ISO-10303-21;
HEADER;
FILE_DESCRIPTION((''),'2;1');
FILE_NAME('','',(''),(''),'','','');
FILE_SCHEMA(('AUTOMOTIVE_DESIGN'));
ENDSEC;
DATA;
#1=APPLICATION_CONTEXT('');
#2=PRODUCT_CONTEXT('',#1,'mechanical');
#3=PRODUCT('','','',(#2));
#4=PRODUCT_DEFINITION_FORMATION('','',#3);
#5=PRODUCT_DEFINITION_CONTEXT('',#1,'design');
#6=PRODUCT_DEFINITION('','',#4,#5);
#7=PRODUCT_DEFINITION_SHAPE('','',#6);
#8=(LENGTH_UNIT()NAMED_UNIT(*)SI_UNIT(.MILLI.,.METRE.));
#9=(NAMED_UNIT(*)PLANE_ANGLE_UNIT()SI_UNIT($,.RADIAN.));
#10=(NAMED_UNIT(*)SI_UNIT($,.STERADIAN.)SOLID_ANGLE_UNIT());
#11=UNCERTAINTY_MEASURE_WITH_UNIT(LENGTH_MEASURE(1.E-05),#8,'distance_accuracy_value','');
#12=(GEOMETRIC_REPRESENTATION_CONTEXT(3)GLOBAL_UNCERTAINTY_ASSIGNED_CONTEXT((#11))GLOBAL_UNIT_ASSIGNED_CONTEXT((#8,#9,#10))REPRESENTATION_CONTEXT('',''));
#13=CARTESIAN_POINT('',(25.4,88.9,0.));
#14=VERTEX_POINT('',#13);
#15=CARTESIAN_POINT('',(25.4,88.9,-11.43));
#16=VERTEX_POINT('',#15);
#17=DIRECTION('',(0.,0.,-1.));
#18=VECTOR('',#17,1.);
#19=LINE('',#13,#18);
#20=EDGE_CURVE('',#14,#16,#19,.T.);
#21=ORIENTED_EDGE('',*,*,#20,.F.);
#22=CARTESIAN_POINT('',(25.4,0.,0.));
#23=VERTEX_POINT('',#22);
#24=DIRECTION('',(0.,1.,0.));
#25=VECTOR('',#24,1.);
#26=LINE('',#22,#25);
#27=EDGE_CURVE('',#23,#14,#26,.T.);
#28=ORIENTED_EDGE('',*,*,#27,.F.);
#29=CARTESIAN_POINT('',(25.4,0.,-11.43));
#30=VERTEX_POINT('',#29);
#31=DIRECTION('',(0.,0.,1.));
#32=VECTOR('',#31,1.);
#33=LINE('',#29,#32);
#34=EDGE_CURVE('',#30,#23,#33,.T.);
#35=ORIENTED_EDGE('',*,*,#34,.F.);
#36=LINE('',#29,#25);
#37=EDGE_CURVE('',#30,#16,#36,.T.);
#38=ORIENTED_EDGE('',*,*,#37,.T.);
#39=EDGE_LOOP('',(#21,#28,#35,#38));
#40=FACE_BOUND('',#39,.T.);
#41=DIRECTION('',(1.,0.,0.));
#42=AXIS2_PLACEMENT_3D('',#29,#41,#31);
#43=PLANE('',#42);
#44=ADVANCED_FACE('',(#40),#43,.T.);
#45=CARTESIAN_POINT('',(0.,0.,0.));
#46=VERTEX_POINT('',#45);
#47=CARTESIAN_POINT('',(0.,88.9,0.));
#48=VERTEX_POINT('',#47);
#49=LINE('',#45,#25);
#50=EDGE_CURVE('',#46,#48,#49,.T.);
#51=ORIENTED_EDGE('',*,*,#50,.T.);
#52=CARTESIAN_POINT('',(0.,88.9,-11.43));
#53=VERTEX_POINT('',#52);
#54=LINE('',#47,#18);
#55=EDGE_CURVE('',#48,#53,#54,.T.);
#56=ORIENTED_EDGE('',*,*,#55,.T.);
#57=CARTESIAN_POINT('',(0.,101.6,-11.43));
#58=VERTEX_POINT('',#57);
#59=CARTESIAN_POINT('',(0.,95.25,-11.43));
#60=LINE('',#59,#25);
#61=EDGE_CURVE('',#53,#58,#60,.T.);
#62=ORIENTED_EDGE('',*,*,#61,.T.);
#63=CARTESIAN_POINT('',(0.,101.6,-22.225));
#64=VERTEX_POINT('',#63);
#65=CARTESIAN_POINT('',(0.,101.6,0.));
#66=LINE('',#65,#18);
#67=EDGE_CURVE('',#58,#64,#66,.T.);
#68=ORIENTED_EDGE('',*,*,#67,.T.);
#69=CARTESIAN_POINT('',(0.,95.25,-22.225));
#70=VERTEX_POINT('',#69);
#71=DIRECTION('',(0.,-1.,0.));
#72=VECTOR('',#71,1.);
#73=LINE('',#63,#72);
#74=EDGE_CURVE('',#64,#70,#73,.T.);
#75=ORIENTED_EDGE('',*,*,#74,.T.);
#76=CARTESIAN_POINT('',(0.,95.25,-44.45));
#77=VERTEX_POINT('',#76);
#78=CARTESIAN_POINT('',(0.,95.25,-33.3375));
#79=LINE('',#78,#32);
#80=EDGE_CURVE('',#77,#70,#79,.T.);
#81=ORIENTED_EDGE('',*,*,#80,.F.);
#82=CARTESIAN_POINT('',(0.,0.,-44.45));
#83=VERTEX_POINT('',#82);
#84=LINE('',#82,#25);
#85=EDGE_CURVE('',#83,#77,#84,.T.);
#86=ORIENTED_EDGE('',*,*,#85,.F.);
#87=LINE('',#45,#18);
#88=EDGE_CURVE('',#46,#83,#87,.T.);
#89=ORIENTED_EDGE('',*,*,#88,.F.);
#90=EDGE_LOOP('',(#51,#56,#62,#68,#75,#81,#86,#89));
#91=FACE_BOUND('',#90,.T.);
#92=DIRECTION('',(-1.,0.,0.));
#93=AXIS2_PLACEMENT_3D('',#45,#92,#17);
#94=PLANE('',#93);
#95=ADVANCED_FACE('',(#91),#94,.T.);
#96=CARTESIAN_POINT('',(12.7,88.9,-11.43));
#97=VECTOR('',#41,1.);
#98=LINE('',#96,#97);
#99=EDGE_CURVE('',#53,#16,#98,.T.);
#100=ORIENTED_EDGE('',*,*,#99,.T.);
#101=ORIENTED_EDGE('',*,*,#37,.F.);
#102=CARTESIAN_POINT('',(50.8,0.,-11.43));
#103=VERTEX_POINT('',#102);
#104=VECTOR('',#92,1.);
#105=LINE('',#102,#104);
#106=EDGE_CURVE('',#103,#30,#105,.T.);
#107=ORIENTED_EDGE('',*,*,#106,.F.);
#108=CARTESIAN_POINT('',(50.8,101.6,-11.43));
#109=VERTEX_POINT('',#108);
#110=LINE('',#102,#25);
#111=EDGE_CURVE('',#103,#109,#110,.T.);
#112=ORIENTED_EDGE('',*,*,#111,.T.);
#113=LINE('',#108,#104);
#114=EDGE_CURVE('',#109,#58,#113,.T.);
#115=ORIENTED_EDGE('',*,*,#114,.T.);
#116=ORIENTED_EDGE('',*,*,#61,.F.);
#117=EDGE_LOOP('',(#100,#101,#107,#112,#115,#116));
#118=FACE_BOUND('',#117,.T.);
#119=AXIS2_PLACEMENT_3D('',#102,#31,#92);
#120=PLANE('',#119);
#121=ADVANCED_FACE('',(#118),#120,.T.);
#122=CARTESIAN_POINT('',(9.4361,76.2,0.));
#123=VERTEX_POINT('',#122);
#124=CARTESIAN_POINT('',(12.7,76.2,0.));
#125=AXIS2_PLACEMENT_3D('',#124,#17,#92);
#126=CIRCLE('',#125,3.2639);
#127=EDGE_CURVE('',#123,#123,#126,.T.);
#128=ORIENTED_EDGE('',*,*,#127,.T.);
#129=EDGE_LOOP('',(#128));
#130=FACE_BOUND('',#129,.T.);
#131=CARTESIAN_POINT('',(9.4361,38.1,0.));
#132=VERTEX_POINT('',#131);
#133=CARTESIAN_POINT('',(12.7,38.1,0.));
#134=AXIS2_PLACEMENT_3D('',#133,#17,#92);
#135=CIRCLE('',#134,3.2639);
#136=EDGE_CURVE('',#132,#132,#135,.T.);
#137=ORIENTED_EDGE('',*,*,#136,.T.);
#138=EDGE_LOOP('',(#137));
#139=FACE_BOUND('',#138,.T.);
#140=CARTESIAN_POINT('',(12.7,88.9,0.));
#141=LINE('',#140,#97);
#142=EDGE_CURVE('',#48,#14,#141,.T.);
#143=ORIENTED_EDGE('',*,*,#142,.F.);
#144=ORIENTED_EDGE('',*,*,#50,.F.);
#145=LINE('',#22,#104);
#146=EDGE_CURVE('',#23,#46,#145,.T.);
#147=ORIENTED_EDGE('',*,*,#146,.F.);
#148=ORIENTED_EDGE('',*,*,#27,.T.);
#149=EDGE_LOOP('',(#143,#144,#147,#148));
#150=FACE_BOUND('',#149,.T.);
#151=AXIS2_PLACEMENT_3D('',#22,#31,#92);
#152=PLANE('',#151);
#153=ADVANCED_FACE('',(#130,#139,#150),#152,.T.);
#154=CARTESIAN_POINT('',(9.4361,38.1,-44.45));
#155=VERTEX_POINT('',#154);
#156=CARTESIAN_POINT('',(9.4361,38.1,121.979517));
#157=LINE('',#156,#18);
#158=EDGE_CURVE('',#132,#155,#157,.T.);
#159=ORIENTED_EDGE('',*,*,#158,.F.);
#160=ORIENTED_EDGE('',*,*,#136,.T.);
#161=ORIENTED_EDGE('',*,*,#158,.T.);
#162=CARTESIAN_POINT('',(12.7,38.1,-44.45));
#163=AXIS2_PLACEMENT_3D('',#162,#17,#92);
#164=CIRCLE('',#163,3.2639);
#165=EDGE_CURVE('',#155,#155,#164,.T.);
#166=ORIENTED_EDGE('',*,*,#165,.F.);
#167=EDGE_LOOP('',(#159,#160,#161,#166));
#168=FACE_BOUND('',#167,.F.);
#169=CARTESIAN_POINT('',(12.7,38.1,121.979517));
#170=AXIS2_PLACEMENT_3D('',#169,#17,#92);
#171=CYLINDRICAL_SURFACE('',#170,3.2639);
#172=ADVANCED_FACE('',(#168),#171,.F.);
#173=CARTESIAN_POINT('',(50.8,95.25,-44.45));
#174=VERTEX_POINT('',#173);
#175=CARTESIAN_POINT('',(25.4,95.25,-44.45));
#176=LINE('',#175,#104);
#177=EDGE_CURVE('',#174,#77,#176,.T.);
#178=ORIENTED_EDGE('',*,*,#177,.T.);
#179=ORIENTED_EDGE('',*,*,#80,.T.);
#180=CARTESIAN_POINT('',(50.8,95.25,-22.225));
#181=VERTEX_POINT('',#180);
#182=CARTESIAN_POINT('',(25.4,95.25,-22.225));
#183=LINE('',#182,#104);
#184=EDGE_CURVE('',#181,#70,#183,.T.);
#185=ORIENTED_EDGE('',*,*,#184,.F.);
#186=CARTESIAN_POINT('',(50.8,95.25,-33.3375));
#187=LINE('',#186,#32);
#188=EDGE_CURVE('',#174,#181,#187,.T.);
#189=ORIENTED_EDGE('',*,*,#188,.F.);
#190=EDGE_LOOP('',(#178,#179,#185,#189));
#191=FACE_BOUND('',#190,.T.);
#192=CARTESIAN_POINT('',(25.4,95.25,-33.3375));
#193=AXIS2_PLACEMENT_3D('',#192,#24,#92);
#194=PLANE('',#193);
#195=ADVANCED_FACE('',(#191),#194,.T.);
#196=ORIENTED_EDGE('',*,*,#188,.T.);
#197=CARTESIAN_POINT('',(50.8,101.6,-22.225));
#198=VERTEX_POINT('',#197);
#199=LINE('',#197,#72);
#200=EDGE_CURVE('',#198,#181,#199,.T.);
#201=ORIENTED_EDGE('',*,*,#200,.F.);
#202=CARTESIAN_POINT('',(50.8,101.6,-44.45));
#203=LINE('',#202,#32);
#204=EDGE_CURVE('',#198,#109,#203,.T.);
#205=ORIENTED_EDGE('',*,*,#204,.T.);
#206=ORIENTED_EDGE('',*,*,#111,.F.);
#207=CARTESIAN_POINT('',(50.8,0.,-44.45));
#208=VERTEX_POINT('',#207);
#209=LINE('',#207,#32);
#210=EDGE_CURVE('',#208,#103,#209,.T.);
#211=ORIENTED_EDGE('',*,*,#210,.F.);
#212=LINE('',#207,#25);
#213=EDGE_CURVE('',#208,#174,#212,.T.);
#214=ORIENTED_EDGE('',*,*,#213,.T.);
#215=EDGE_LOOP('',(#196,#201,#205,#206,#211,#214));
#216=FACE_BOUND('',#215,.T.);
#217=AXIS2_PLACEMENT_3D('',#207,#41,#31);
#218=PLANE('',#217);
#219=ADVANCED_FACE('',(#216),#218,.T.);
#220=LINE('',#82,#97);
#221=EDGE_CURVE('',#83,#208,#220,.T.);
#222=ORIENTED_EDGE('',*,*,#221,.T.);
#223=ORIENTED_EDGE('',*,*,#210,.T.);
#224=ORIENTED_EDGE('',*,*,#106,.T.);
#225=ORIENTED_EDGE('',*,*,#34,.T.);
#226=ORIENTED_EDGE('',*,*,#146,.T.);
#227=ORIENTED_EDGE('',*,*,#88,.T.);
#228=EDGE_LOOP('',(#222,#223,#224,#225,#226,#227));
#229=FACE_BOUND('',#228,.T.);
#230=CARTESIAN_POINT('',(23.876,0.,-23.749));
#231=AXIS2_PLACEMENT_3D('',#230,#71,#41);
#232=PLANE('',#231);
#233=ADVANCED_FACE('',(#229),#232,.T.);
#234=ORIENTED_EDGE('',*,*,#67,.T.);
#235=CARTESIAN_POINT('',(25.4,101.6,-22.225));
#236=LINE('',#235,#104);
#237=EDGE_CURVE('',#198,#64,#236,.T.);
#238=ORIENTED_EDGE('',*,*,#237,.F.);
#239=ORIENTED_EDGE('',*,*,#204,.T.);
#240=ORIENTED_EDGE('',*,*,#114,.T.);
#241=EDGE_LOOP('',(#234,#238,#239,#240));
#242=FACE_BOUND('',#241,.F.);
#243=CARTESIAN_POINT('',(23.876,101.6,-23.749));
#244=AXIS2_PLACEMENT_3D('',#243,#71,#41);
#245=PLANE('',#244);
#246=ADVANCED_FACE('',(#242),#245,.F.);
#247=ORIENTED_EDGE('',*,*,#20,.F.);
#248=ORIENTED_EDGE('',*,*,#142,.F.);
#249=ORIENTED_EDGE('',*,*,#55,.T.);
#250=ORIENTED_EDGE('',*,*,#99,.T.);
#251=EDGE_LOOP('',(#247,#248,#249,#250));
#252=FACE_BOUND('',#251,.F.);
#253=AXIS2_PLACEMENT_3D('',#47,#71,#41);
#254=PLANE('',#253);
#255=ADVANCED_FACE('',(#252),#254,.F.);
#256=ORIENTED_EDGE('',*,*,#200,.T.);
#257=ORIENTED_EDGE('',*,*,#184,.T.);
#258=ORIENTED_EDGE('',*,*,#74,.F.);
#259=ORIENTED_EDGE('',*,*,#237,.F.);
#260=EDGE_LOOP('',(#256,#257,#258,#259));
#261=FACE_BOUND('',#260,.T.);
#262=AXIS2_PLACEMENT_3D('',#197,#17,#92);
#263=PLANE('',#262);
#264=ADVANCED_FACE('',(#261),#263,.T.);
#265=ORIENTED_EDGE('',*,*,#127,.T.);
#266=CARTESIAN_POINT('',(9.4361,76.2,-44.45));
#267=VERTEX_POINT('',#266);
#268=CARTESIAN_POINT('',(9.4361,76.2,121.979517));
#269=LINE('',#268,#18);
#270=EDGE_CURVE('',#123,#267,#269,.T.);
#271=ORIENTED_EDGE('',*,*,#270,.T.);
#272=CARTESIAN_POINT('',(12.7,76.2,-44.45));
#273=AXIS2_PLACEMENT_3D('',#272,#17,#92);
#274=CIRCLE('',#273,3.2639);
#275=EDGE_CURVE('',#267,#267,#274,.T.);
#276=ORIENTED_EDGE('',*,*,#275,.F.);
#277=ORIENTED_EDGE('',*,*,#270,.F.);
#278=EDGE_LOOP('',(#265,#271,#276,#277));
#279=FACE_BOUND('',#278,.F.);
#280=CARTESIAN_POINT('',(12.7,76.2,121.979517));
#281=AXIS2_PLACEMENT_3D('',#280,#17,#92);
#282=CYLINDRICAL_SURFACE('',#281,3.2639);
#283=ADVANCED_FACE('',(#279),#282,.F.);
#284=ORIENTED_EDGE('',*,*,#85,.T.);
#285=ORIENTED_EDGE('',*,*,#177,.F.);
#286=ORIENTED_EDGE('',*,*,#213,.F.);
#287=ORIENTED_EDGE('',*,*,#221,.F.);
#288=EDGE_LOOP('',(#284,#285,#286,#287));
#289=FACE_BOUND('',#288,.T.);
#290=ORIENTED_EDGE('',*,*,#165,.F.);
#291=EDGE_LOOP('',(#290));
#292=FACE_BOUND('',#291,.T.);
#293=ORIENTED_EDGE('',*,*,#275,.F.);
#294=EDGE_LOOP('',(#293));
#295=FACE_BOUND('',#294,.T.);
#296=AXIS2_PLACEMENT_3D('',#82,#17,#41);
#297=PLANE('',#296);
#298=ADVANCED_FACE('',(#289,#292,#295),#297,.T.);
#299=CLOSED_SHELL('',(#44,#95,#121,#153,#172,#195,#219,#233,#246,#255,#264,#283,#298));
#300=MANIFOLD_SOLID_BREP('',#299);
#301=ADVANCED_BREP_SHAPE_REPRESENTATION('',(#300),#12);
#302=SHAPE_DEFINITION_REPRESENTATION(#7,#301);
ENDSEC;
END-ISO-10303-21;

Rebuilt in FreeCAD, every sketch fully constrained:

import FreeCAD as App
import Part
import Sketcher

V = App.Vector
Q = App.Units.Quantity


def add_polygon(sketch, points):
    """Adds a closed chain of lines whose ends are joined by coincident constraints."""
    first, n = sketch.GeometryCount, len(points)
    for a, b in zip(points, points[1:] + points[:1]):
        sketch.addGeometry(Part.LineSegment(App.Vector(*a, 0), App.Vector(*b, 0)), False)
    for i in range(n):
        sketch.addConstraint(Sketcher.Constraint("Coincident", first + i, 2, first + (i + 1) % n, 1))

doc = App.newDocument("Part")
body = doc.addObject("PartDesign::Body", "Body")

sketch1 = body.newObject("Sketcher::SketchObject", "Sketch")
sketch1.AttachmentSupport = (doc.getObject("XZ_Plane"), [""])
sketch1.MapMode = "FlatFace"
add_polygon(sketch1, [(25, 0), (0, 0), (0, -44), (51, -44), (51, -11), (25, -11)])
sketch1.addConstraint([
    Sketcher.Constraint("Horizontal", 0),
    Sketcher.Constraint("Vertical", 1),
    Sketcher.Constraint("Horizontal", 2),
    Sketcher.Constraint("Vertical", 3),
    Sketcher.Constraint("Horizontal", 4),
    Sketcher.Constraint("Vertical", 5),
    Sketcher.Constraint("Coincident", 0, 2, -1, 1),
    Sketcher.Constraint("Equal", 0, 4),
    Sketcher.Constraint("DistanceX", 0, 2, 0, 1, Q("1 in")),
    Sketcher.Constraint("DistanceY", 3, 1, 3, 2, Q("1.3 in")),
    Sketcher.Constraint("DistanceY", 1, 2, 1, 1, Q("1.75 in")),
])
pad1 = body.newObject("PartDesign::Pad", "Pad")
pad1.Profile = sketch1
pad1.Length = Q("4 in")
pad1.Reversed = True

sketch2 = body.newObject("Sketcher::SketchObject", "Sketch001")
sketch2.AttachmentSupport = (doc.getObject("XZ_Plane"), [""])
sketch2.MapMode = "FlatFace"
sketch2.AttachmentOffset = App.Placement(V(0, 0, -4 * 25.4), App.Rotation())
add_polygon(sketch2, [(51, -22), (51, -44), (0, -44), (0, -22)])
sketch2.addConstraint([
    Sketcher.Constraint("Vertical", 0),
    Sketcher.Constraint("Horizontal", 1),
    Sketcher.Constraint("Vertical", 2),
    Sketcher.Constraint("Horizontal", 3),
    Sketcher.Constraint("PointOnObject", 1, 2, -2),
    Sketcher.Constraint("DistanceX", 1, 2, 1, 1, Q("2 in")),
    Sketcher.Constraint("DistanceY", 0, 2, 0, 1, Q("0.875 in")),
    Sketcher.Constraint("DistanceY", 0, 2, -1, 1, Q("1.75 in")),
])
pocket1 = body.newObject("PartDesign::Pocket", "Pocket")
pocket1.Profile = sketch2
pocket1.Length = Q("0.25 in")
pocket1.Reversed = True

sketch3 = body.newObject("Sketcher::SketchObject", "Sketch002")
sketch3.AttachmentSupport = (doc.getObject("XY_Plane"), [""])
sketch3.MapMode = "FlatFace"
add_polygon(sketch3, [(0, 102), (0, 89), (25, 89), (25, 102)])
sketch3.addConstraint([
    Sketcher.Constraint("Vertical", 0),
    Sketcher.Constraint("Horizontal", 1),
    Sketcher.Constraint("Vertical", 2),
    Sketcher.Constraint("Horizontal", 3),
    Sketcher.Constraint("PointOnObject", 0, 2, -2),
    Sketcher.Constraint("DistanceX", 1, 1, 1, 2, Q("1 in")),
    Sketcher.Constraint("DistanceY", 0, 2, 0, 1, Q("0.5 in")),
    Sketcher.Constraint("DistanceY", -1, 1, 2, 2, Q("4 in")),
])
pocket2 = body.newObject("PartDesign::Pocket", "Pocket001")
pocket2.Profile = sketch3
pocket2.Length = Q("0.45 in")

sketch4 = body.newObject("Sketcher::SketchObject", "Sketch003")
sketch4.AttachmentSupport = (doc.getObject("XY_Plane"), [""])
sketch4.MapMode = "FlatFace"
sketch4.addGeometry([
    Part.Circle(V(12.7, 76.2, 0), V(0, 0, 1), 3.3),
    Part.Circle(V(12.7, 38.1, 0), V(0, 0, 1), 3.3),
], False)
sketch4.addConstraint([
    Sketcher.Constraint("Equal", 0, 1),
    Sketcher.Constraint("Vertical", 0, 3, 1, 3),
    Sketcher.Constraint("Diameter", 0, Q("0.257 in")),
    Sketcher.Constraint("DistanceY", -1, 1, 0, 3, Q("3 in")),
    Sketcher.Constraint("DistanceX", -1, 1, 0, 3, Q("0.5 in")),
    Sketcher.Constraint("DistanceY", -1, 1, 1, 3, Q("1.5 in")),
])
doc.recompute()
hole = body.newObject("PartDesign::Hole", "Hole")
hole.Profile = sketch4
hole.ThreadType = "None"
hole.Diameter = Q("0.257 in")
hole.DepthType = "ThroughAll"

doc.recompute()
